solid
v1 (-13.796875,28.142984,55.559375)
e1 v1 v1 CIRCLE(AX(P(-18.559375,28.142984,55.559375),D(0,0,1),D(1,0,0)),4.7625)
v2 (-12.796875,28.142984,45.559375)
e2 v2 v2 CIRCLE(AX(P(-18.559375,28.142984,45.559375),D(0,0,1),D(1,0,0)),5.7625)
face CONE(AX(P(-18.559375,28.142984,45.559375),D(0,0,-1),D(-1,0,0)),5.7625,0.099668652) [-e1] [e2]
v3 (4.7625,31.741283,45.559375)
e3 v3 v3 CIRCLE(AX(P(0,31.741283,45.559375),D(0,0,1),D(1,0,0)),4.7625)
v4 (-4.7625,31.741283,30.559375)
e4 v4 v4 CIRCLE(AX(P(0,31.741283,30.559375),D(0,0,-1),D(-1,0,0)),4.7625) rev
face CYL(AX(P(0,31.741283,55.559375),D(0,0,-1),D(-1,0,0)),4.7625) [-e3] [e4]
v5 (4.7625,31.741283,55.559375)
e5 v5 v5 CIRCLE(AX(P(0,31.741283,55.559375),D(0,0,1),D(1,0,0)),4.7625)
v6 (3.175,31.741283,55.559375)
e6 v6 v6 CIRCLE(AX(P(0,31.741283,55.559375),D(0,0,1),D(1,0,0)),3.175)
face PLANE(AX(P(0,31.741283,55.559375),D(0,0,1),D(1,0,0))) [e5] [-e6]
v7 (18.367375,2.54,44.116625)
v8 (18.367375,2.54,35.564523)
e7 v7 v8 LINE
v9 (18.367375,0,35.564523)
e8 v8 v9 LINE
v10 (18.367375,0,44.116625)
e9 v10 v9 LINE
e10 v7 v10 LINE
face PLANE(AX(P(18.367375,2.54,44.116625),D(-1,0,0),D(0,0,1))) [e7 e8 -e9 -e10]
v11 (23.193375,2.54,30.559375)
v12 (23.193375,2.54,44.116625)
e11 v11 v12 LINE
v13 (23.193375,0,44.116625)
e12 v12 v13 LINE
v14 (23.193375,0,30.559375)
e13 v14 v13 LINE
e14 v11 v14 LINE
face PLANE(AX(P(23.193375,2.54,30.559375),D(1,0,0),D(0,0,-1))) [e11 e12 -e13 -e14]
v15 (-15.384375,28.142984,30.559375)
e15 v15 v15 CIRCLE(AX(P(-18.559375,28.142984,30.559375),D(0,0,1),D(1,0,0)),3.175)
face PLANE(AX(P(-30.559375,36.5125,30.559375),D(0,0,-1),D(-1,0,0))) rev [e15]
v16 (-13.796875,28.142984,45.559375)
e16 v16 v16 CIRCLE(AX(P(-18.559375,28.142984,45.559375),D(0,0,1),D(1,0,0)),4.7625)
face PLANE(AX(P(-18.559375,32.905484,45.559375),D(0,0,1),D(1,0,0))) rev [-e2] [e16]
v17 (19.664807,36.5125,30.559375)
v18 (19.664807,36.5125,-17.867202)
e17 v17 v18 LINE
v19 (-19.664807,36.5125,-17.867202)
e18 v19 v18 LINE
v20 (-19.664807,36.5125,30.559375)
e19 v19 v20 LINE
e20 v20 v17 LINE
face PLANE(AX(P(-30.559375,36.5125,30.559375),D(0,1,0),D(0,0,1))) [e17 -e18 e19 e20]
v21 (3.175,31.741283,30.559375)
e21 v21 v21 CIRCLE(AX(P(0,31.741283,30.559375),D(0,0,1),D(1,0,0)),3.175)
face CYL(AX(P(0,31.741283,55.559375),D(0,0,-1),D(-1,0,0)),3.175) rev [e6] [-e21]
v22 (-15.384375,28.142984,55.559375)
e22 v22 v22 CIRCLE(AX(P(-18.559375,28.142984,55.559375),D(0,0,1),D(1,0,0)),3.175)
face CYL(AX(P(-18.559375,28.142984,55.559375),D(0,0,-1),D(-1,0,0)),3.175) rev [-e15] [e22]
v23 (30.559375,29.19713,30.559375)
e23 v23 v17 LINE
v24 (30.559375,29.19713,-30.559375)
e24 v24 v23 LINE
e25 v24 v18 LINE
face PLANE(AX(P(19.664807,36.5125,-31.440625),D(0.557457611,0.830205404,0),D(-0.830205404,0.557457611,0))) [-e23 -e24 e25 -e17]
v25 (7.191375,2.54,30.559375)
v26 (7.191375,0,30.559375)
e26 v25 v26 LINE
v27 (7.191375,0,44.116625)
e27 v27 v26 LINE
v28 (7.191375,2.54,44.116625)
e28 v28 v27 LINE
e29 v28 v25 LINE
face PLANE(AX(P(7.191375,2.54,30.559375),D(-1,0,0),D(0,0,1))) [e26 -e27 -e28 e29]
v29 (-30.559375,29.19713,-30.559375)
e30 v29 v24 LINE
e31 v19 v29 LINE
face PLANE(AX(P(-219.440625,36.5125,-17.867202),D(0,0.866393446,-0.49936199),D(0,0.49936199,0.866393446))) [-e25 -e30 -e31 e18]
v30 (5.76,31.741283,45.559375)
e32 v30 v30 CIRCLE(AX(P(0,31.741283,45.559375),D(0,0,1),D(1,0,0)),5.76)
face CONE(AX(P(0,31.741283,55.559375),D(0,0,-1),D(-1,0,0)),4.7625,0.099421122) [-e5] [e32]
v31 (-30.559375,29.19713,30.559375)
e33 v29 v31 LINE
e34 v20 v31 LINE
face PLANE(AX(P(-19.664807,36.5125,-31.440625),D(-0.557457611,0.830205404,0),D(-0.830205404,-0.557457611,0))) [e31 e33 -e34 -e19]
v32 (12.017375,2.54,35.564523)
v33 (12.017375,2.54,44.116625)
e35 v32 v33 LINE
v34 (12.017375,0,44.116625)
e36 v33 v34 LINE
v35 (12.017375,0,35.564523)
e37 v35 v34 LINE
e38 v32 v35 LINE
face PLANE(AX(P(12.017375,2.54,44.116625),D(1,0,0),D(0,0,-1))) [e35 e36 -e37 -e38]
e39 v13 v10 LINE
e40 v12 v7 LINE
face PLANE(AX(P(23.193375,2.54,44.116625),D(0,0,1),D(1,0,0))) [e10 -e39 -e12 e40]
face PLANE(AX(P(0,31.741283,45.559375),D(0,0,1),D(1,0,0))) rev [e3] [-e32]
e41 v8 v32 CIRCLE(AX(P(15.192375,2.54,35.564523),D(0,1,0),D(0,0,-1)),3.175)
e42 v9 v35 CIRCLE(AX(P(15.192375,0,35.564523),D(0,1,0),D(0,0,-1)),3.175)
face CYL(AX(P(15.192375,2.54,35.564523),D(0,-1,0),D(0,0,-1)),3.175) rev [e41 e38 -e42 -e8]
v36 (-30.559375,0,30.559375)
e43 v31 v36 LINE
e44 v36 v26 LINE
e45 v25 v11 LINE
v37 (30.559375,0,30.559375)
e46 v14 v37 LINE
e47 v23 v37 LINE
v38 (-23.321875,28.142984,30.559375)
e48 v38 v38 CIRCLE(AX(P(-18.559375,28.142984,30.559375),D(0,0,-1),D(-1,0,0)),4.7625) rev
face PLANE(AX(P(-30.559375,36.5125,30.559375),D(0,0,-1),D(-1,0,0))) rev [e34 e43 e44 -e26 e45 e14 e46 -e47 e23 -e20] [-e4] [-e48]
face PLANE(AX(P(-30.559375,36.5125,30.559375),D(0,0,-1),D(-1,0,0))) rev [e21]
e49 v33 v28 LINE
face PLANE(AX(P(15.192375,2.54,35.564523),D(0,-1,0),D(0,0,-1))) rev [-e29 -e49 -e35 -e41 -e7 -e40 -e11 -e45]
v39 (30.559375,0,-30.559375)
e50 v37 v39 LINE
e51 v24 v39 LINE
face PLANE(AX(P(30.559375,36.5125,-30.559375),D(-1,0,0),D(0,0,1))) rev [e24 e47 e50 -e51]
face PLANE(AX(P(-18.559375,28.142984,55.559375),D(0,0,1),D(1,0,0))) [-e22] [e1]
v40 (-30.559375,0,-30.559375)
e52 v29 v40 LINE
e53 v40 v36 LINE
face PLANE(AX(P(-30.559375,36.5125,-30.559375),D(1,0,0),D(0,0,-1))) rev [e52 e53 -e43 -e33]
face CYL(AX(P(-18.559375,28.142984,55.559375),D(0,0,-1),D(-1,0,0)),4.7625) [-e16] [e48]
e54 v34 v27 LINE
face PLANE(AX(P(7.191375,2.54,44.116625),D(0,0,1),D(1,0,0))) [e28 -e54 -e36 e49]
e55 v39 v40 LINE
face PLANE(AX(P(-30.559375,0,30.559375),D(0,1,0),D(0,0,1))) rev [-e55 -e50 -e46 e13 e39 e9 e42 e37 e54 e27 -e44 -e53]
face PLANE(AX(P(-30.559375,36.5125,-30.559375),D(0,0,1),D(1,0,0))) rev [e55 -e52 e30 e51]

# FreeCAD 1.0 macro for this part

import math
import FreeCAD as App
import Part
import Sketcher
Q = App.Units.Quantity


def add_polygon(sketch, points):
    """Adds a closed chain of lines whose ends are joined by coincident constraints."""
    first, n = sketch.GeometryCount, len(points)
    for a, b in zip(points, points[1:] + points[:1]):
        sketch.addGeometry(Part.LineSegment(App.Vector(*a, 0), App.Vector(*b, 0)), False)
    for i in range(n):
        sketch.addConstraint(Sketcher.Constraint("Coincident", first + i, 2, first + (i + 1) % n, 1))

doc = App.newDocument("Part")
body = doc.addObject("PartDesign::Body", "Body")

sketch1 = body.newObject("Sketcher::SketchObject", "Sketch")
sketch1.AttachmentSupport = (doc.getObject("XZ_Plane"), [""])
sketch1.MapMode = "FlatFace"
add_polygon(sketch1, [(-31, -31), (-31, 31), (31, 31), (31, -31)])
sketch1.addConstraint([
    Sketcher.Constraint("Vertical", 0),
    Sketcher.Constraint("Horizontal", 1),
    Sketcher.Constraint("Vertical", 2),
    Sketcher.Constraint("Horizontal", 3),
    Sketcher.Constraint("Symmetric", 0, 2, 2, 2, -1, 1),
    Sketcher.Constraint("Equal", 3, 0),
    Sketcher.Constraint("DistanceX", 1, 1, 1, 2, Q("2.40625 in")),
])
pad1 = body.newObject("PartDesign::Pad", "Pad")
pad1.Profile = sketch1
pad1.Length = Q("1.4375 in")
pad1.Reversed = True

sketch2 = body.newObject("Sketcher::SketchObject", "Sketch001")
sketch2.AttachmentSupport = (doc.getObject("XY_Plane"), [""])
sketch2.MapMode = "FlatFace"
sketch2.AttachmentOffset = App.Placement(App.Vector(0, 0, 1.203125 * 25.4), App.Rotation())
add_polygon(sketch2, [(-41, 47), (-41, -10), (41, -10), (41, 47)])
add_polygon(sketch2, [(-20, 37), (20, 37), (31, 29), (31, 0), (-31, 0), (-31, 29)])
sketch2.addConstraint([
    Sketcher.Constraint("Vertical", 0),
    Sketcher.Constraint("Horizontal", 1),
    Sketcher.Constraint("Vertical", 2),
    Sketcher.Constraint("Horizontal", 3),
    Sketcher.Constraint("Horizontal", 4),
    Sketcher.Constraint("Vertical", 6),
    Sketcher.Constraint("Horizontal", 7),
    Sketcher.Constraint("Vertical", 8),
    Sketcher.Constraint("Symmetric", 6, 2, 7, 2, -1, 1),
    Sketcher.Constraint("Horizontal", 5, 2, 8, 2),
    Sketcher.Constraint("Equal", 5, 9),
    Sketcher.Constraint("DistanceX", 7, 2, 7, 1, Q("2.40625 in")),
    Sketcher.Constraint("DistanceY", -1, 1, 4, 2, Q("1.4375 in")),
    Sketcher.Constraint("DistanceX", 1, 1, 1, 2, 81.884),
    Sketcher.Constraint("DistanceY", 0, 2, 0, 1, 57.278),
    Sketcher.Constraint("DistanceY", 6, 2, 6, 1, 29.19713),
    Sketcher.Constraint("DistanceX", 0, 2, -1, 1, 40.942),
    Sketcher.Constraint("DistanceY", 0, 2, -1, 1, 10.383),
    Sketcher.Constraint("DistanceX", 4, 1, 4, 2, 39.329615),
])
pocket1 = body.newObject("PartDesign::Pocket", "Pocket")
pocket1.Profile = sketch2
pocket1.Length = 62

sketch3 = body.newObject("Sketcher::SketchObject", "Sketch002")
sketch3.AttachmentSupport = (doc.getObject("YZ_Plane"), [""])
sketch3.MapMode = "FlatFace"
sketch3.AttachmentOffset = App.Placement(App.Vector(0, 0, 1.203125 * 25.4), App.Rotation())
add_polygon(sketch3, [(47, 41), (-10, 41), (-10, -41), (47, -41)])
add_polygon(sketch3, [(0, 31), (37, 31), (37, -18), (29, -31), (0, -31)])
sketch3.addConstraint([
    Sketcher.Constraint("Horizontal", 0),
    Sketcher.Constraint("Vertical", 1),
    Sketcher.Constraint("Horizontal", 2),
    Sketcher.Constraint("Vertical", 3),
    Sketcher.Constraint("Horizontal", 4),
    Sketcher.Constraint("Vertical", 5),
    Sketcher.Constraint("Horizontal", 7),
    Sketcher.Constraint("Vertical", 8),
    Sketcher.Constraint("Symmetric", 7, 2, 8, 2, -1, 1),
    Sketcher.Constraint("DistanceX", 4, 1, 4, 2, Q("1.4375 in")),
    Sketcher.Constraint("DistanceY", 8, 1, 8, 2, Q("2.40625 in")),
    Sketcher.Constraint("DistanceX", 0, 2, 0, 1, 57.278),
    Sketcher.Constraint("DistanceY", 1, 2, 1, 1, 81.884),
    Sketcher.Constraint("DistanceX", 7, 2, 7, 1, 29.19713),
    Sketcher.Constraint("DistanceX", 0, 2, -1, 1, 10.383),
    Sketcher.Constraint("DistanceY", -1, 1, 0, 2, 40.942),
    Sketcher.Constraint("DistanceY", 5, 2, 5, 1, 48.426577),
])
pocket2 = body.newObject("PartDesign::Pocket", "Pocket001")
pocket2.Profile = sketch3
pocket2.Length = 250

sketch4 = body.newObject("Sketcher::SketchObject", "Sketch003")
sketch4.AttachmentSupport = (doc.getObject("XY_Plane"), [""])
sketch4.MapMode = "FlatFace"
sketch4.AttachmentOffset = App.Placement(App.Vector(0, 0, 1.203125 * 25.4), App.Rotation())
sketch4.addGeometry([
    Part.Circle(App.Vector(0, 31.7, 0), App.Vector(0, 0, 1), 4.8),
    Part.Circle(App.Vector(0, 31.7, 0), App.Vector(0, 0, 1), 3.2),
], False)
sketch4.addConstraint([
    Sketcher.Constraint("Coincident", 1, 3, 0, 3),
    Sketcher.Constraint("PointOnObject", 0, 3, -2),
    Sketcher.Constraint("Diameter", 1, Q("0.25 in")),
    Sketcher.Constraint("Diameter", 0, Q("0.375 in")),
    Sketcher.Constraint("DistanceY", -1, 1, 0, 3, 31.741283),
])
pad2 = body.newObject("PartDesign::Pad", "Pad001")
pad2.Profile = sketch4
pad2.Length = 25

sketch5 = body.newObject("Sketcher::SketchObject", "Sketch004")
sketch5.AttachmentSupport = (doc.getObject("XY_Plane"), [""])
sketch5.MapMode = "FlatFace"
sketch5.AttachmentOffset = App.Placement(App.Vector(0, 0, 1.203125 * 25.4), App.Rotation())
sketch5.addGeometry([
    Part.Circle(App.Vector(-18.6, 28.1, 0), App.Vector(0, 0, 1), 4.8),
    Part.Circle(App.Vector(-18.6, 28.1, 0), App.Vector(0, 0, 1), 3.2),
], False)
sketch5.addConstraint([
    Sketcher.Constraint("Coincident", 1, 3, 0, 3),
    Sketcher.Constraint("Diameter", 1, Q("0.25 in")),
    Sketcher.Constraint("Diameter", 0, Q("0.375 in")),
    Sketcher.Constraint("DistanceX", 0, 3, -1, 1, 18.559375),
    Sketcher.Constraint("DistanceY", -1, 1, 0, 3, 28.142984),
])
pad3 = body.newObject("PartDesign::Pad", "Pad002")
pad3.Profile = sketch5
pad3.Length = 25

sketch6 = body.newObject("Sketcher::SketchObject", "Sketch005")
sketch6.AttachmentSupport = (doc.getObject("XZ_Plane"), [""])
sketch6.MapMode = "FlatFace"
sketch6.addGeometry([
    Part.LineSegment(App.Vector(7.2, 30.6, 0), App.Vector(23.2, 30.6, 0)),
    Part.LineSegment(App.Vector(23.2, 30.6, 0), App.Vector(23.2, 44.1, 0)),
    Part.LineSegment(App.Vector(23.2, 44.1, 0), App.Vector(18.4, 44.1, 0)),
    Part.LineSegment(App.Vector(18.4, 44.1, 0), App.Vector(18.4, 35.6, 0)),
    Part.ArcOfCircle(Part.Circle(App.Vector(15.2, 35.6, 0), App.Vector(0, 0, 1), 3.2), math.radians(180), math.radians(360)),
    Part.LineSegment(App.Vector(12, 35.6, 0), App.Vector(12, 44.1, 0)),
    Part.LineSegment(App.Vector(12, 44.1, 0), App.Vector(7.2, 44.1, 0)),
    Part.LineSegment(App.Vector(7.2, 44.1, 0), App.Vector(7.2, 30.6, 0)),
], False)
sketch6.addConstraint([
    Sketcher.Constraint("Coincident", 0, 2, 1, 1),
    Sketcher.Constraint("Coincident", 1, 2, 2, 1),
    Sketcher.Constraint("Coincident", 2, 2, 3, 1),
    Sketcher.Constraint("Tangent", 3, 2, 4, 2),
    Sketcher.Constraint("Tangent", 4, 1, 5, 1),
    Sketcher.Constraint("Coincident", 5, 2, 6, 1),
    Sketcher.Constraint("Coincident", 6, 2, 7, 1),
    Sketcher.Constraint("Coincident", 7, 2, 0, 1),
    Sketcher.Constraint("Horizontal", 0),
    Sketcher.Constraint("Vertical", 1),
    Sketcher.Constraint("Horizontal", 2),
    Sketcher.Constraint("Vertical", 3),
    Sketcher.Constraint("Vertical", 5),
    Sketcher.Constraint("Horizontal", 6),
    Sketcher.Constraint("Vertical", 7),
    Sketcher.Constraint("Horizontal", 2, 2, 5, 2),
    Sketcher.Constraint("Equal", 2, 6),
    Sketcher.Constraint("Radius", 4, Q("0.125 in")),
    Sketcher.Constraint("DistanceX", 0, 1, 0, 2, Q("0.63 in")),
    Sketcher.Constraint("DistanceY", -1, 1, 0, 2, Q("1.203125 in")),
    Sketcher.Constraint("DistanceY", 3, 2, 3, 1, 8.552102),
    Sketcher.Constraint("DistanceY", 1, 1, 1, 2, 13.55725),
    Sketcher.Constraint("DistanceX", -1, 1, 4, 3, 15.192375),
])
pad4 = body.newObject("PartDesign::Pad", "Pad003")
pad4.Profile = sketch6
pad4.Length = Q("0.1 in")
pad4.Reversed = True

sketch7 = body.newObject("Sketcher::SketchObject", "Sketch006")
sketch7.AttachmentSupport = (doc.getObject("XY_Plane"), [""])
sketch7.MapMode = "FlatFace"
sketch7.AttachmentOffset = App.Placement(App.Vector(0, 0, 55.559375), App.Rotation())
sketch7.addGeometry([
    Part.Circle(App.Vector(0, 31.7, 0), App.Vector(0, 0, 1), 5.8),
    Part.Circle(App.Vector(0, 31.7, 0), App.Vector(0, 0, 1), 4.8),
], False)
sketch7.addConstraint([
    Sketcher.Constraint("Coincident", 1, 3, 0, 3),
    Sketcher.Constraint("PointOnObject", 0, 3, -2),
    Sketcher.Constraint("Diameter", 1, Q("0.375 in")),
    Sketcher.Constraint("Diameter", 0, 11.52),
    Sketcher.Constraint("DistanceY", -1, 1, 0, 3, 31.741283),
])
pad5 = body.newObject("PartDesign::Pad", "Pad004")
pad5.Profile = sketch7
pad5.Length = 10
pad5.Reversed = True

sketch8 = body.newObject("Sketcher::SketchObject", "Sketch007")
sketch8.AttachmentSupport = (doc.getObject("YZ_Plane"), [""])
sketch8.MapMode = "FlatFace"
add_polygon(sketch8, [(37.5, 55.6), (36.5, 55.6), (37.5, 45.6)])
sketch8.addGeometry(Part.LineSegment(App.Vector(31.7, 55.6, 0), App.Vector(31.7, 45.6, 0)), True)
sketch8.addConstraint([
    Sketcher.Constraint("Horizontal", 0),
    Sketcher.Constraint("Vertical", 2),
    Sketcher.Constraint("Vertical", 3),
    Sketcher.Constraint("Horizontal", 2, 2, 3, 1),
    Sketcher.Constraint("Horizontal", 1, 2, 3, 2),
    Sketcher.Constraint("DistanceX", 3, 1, 0, 2, Q("0.1875 in")),
    Sketcher.Constraint("DistanceX", 0, 2, 0, 1, 0.9975),
    Sketcher.Constraint("DistanceY", 2, 1, 2, 2, 10.0),
    Sketcher.Constraint("DistanceX", -1, 1, 0, 2, 36.503783),
    Sketcher.Constraint("DistanceY", -1, 1, 0, 2, 55.559375),
])
groove = body.newObject("PartDesign::Groove", "Groove")
groove.Profile = sketch8
groove.ReferenceAxis = (sketch8, ["Axis0"])
groove.Angle = 360

sketch9 = body.newObject("Sketcher::SketchObject", "Sketch008")
sketch9.AttachmentSupport = (doc.getObject("YZ_Plane"), [""])
sketch9.MapMode = "FlatFace"
sketch9.AttachmentOffset = App.Placement(App.Vector(0, 0, -18.559375), App.Rotation())
add_polygon(sketch9, [(32.9, 55.6), (32.9, 45.6), (33.9, 45.6)])
sketch9.addGeometry(Part.LineSegment(App.Vector(28.1, 55.6, 0), App.Vector(28.1, 45.6, 0)), True)
sketch9.addConstraint([
    Sketcher.Constraint("Vertical", 0),
    Sketcher.Constraint("Horizontal", 1),
    Sketcher.Constraint("Vertical", 3),
    Sketcher.Constraint("Horizontal", 2, 2, 3, 1),
    Sketcher.Constraint("Horizontal", 1, 2, 3, 2),
    Sketcher.Constraint("DistanceX", 3, 1, 2, 2, Q("0.1875 in")),
    Sketcher.Constraint("DistanceX", 1, 1, 1, 2, 1.0),
    Sketcher.Constraint("DistanceY", 0, 2, 0, 1, 10.0),
    Sketcher.Constraint("DistanceX", -1, 1, 0, 2, 32.905484),
    Sketcher.Constraint("DistanceY", -1, 1, 0, 2, 45.559375),
])
revolution = body.newObject("PartDesign::Revolution", "Revolution")
revolution.Profile = sketch9
revolution.ReferenceAxis = (sketch9, ["Axis0"])
revolution.Angle = 360

doc.recompute()
